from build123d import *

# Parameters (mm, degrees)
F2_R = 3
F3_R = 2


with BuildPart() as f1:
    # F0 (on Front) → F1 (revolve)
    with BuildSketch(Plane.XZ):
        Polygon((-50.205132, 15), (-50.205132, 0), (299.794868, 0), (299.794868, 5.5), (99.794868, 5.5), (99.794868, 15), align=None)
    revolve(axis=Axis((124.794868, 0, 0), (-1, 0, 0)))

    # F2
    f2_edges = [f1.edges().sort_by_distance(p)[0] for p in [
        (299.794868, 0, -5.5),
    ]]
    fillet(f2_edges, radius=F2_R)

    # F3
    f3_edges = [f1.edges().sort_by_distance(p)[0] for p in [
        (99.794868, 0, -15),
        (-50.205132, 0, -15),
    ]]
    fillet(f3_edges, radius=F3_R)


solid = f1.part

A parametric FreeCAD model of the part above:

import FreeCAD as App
import Part
import Sketcher
from FreeCAD import Vector


def edges_at(feature, points):
    """Names of the edges that pass closest to the given points."""
    edges = feature.Shape.Edges
    near = lambda p: min(range(len(edges)), key=lambda i: edges[i].distToShape(Part.Vertex(*p))[0])
    return sorted({f"Edge{near(p) + 1}" for p in points})

doc = App.newDocument("Part")
body = doc.addObject("PartDesign::Body", "Body")

sketch1 = body.newObject("Sketcher::SketchObject", "Sketch")
sketch1.AttachmentSupport = (doc.getObject("XZ_Plane"), [""])
sketch1.MapMode = "FlatFace"
sketch1.addGeometry(Part.LineSegment(Vector(-50.205132, 15, 0), Vector(-50.205132, 0, 0)), False)
sketch1.addGeometry(Part.LineSegment(Vector(-50.205132, 0, 0), Vector(299.794868, 0, 0)), False)
sketch1.addGeometry(Part.LineSegment(Vector(299.794868, 0, 0), Vector(299.794868, 5.5, 0)), False)
sketch1.addGeometry(Part.LineSegment(Vector(299.794868, 5.5, 0), Vector(99.794868, 5.5, 0)), False)
sketch1.addGeometry(Part.LineSegment(Vector(99.794868, 5.5, 0), Vector(99.794868, 15, 0)), False)
sketch1.addGeometry(Part.LineSegment(Vector(99.794868, 15, 0), Vector(-50.205132, 15, 0)), False)
sketch1.addConstraint(Sketcher.Constraint("Coincident", 0, 2, 1, 1))
sketch1.addConstraint(Sketcher.Constraint("Coincident", 1, 2, 2, 1))
sketch1.addConstraint(Sketcher.Constraint("Coincident", 2, 2, 3, 1))
sketch1.addConstraint(Sketcher.Constraint("Coincident", 3, 2, 4, 1))
sketch1.addConstraint(Sketcher.Constraint("Coincident", 4, 2, 5, 1))
sketch1.addConstraint(Sketcher.Constraint("Coincident", 5, 2, 0, 1))
sketch1.addConstraint(Sketcher.Constraint("Vertical", 0))
sketch1.addConstraint(Sketcher.Constraint("Horizontal", 1))
sketch1.addConstraint(Sketcher.Constraint("Vertical", 2))
sketch1.addConstraint(Sketcher.Constraint("Horizontal", 3))
sketch1.addConstraint(Sketcher.Constraint("Vertical", 4))
sketch1.addConstraint(Sketcher.Constraint("Horizontal", 5))
sketch1.addConstraint(Sketcher.Constraint("PointOnObject", 0, 2, -1))
sketch1.addConstraint(Sketcher.Constraint("DistanceX", 1, 1, 1, 2, 350.0))
sketch1.addConstraint(Sketcher.Constraint("DistanceX", 3, 2, 3, 1, 200.0))
sketch1.addConstraint(Sketcher.Constraint("DistanceY", 0, 2, 0, 1, 15.0))
sketch1.addConstraint(Sketcher.Constraint("DistanceY", 2, 1, 2, 2, 5.5))
sketch1.addConstraint(Sketcher.Constraint("DistanceX", -1, 1, 1, 2, 299.794868))
revolution = body.newObject("PartDesign::Revolution", "Revolution")
revolution.Profile = sketch1
revolution.ReferenceAxis = (sketch1, ["H_Axis"])
revolution.Angle = 360
doc.recompute()

fillet = body.newObject("PartDesign::Fillet", "Fillet")
fillet.Base = (revolution, edges_at(revolution, [(299.795, 0, -5.5)]))
fillet.Radius = 3
doc.recompute()

fillet2 = body.newObject("PartDesign::Fillet", "Fillet001")
fillet2.Base = (fillet, edges_at(fillet, [(99.795, 0, -15), (-50.205, 0, -15)]))
fillet2.Radius = 2

doc.recompute()
